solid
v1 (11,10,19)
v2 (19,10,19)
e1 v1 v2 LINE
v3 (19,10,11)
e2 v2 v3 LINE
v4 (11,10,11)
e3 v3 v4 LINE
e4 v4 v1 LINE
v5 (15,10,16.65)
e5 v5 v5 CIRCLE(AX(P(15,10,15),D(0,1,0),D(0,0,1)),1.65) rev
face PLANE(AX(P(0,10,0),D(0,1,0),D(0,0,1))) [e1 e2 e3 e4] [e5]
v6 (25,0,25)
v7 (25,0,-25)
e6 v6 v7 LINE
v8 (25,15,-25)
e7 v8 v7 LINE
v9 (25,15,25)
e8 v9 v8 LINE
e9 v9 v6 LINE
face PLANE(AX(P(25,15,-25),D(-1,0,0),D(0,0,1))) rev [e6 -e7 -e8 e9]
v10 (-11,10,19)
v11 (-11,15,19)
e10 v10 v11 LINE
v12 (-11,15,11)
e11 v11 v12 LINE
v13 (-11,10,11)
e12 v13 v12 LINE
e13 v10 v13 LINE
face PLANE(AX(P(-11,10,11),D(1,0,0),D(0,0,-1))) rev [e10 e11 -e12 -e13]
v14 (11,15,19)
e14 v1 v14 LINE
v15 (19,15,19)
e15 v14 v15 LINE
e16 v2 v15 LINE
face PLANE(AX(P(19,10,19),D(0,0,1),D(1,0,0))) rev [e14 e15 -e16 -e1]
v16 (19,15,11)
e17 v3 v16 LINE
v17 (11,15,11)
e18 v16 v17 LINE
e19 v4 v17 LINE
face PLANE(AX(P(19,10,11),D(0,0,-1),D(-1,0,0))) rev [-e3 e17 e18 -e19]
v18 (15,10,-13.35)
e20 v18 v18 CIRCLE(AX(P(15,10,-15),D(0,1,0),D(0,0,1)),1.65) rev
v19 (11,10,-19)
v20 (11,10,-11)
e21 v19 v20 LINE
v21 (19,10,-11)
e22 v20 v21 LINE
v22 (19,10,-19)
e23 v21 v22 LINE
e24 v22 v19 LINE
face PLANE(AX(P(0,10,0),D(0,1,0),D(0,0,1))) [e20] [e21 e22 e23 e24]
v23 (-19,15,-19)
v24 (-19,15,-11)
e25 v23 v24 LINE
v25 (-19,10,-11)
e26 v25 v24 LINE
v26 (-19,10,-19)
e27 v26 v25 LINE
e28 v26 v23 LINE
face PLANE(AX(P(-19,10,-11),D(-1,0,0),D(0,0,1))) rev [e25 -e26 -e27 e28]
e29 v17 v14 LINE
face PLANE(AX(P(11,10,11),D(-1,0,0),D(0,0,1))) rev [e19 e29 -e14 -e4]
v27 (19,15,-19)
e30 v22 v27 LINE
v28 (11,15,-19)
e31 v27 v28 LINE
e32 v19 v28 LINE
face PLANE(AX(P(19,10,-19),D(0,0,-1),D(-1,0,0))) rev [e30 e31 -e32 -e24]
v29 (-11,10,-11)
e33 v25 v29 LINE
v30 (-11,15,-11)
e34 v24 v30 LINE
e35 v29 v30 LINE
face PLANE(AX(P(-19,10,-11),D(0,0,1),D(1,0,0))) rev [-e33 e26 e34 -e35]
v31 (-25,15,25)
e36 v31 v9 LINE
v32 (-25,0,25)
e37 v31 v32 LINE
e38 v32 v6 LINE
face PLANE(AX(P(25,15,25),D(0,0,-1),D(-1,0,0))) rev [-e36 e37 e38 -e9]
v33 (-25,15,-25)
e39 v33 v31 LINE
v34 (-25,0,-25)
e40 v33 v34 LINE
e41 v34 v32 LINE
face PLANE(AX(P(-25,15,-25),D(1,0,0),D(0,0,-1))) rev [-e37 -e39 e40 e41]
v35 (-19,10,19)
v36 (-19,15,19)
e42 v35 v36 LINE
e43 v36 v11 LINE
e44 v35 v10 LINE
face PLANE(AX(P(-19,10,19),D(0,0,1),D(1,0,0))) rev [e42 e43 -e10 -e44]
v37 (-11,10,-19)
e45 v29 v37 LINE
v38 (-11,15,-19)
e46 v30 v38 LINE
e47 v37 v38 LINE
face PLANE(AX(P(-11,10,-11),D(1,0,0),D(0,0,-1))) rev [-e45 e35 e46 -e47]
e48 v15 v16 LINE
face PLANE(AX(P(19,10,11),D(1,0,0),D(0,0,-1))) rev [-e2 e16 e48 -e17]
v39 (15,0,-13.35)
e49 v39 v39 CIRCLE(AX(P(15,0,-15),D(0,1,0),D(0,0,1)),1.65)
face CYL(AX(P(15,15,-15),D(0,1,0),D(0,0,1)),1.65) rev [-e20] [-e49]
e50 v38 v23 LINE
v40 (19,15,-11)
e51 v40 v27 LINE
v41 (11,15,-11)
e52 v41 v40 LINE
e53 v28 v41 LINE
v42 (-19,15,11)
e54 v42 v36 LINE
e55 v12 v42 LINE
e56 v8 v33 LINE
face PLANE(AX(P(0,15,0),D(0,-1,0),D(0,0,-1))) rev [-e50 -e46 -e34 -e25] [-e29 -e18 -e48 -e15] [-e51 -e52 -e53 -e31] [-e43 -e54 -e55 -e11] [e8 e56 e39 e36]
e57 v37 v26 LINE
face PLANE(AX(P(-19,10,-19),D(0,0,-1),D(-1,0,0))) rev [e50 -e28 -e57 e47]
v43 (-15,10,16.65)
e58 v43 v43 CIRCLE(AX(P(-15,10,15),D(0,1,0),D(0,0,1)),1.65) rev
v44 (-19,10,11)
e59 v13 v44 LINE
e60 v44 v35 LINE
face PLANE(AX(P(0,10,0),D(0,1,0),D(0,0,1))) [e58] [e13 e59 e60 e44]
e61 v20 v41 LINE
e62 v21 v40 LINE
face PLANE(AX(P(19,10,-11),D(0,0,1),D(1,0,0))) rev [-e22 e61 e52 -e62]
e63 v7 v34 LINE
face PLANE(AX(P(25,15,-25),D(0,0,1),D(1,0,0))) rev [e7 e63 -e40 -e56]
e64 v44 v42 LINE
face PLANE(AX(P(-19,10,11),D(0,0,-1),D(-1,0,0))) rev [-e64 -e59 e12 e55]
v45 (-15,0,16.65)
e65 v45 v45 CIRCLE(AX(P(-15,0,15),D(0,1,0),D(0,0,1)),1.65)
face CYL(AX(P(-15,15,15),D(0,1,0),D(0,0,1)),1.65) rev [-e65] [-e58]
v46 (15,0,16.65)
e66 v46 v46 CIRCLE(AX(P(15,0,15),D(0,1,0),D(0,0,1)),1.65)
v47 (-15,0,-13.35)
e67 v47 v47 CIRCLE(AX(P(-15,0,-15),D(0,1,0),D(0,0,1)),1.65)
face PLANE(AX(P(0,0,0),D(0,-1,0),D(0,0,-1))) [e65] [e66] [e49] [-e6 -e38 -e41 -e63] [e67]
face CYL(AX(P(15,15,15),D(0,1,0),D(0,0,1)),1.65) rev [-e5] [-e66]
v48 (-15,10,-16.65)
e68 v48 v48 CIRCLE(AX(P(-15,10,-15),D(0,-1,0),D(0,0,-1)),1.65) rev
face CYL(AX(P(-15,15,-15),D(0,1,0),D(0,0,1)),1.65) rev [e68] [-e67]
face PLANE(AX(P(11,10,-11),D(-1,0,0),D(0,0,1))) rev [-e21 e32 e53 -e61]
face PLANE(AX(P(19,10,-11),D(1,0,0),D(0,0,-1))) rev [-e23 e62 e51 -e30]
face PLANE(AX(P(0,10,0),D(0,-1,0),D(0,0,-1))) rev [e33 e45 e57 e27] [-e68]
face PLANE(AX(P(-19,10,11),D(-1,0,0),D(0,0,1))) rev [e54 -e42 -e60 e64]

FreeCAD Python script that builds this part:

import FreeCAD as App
import Part
import Sketcher
from FreeCAD import Vector
Q = App.Units.Quantity


def add_polygon(sketch, points):
    """Adds a closed chain of lines whose ends are joined by coincident constraints."""
    first, n = sketch.GeometryCount, len(points)
    for a, b in zip(points, points[1:] + points[:1]):
        sketch.addGeometry(Part.LineSegment(App.Vector(*a, 0), App.Vector(*b, 0)), False)
    for i in range(n):
        sketch.addConstraint(Sketcher.Constraint("Coincident", first + i, 2, first + (i + 1) % n, 1))

doc = App.newDocument("Part")
body = doc.addObject("PartDesign::Body", "Body")

# Sketch on XZ plane
sketch1 = body.newObject("Sketcher::SketchObject", "Sketch")
sketch1.AttachmentSupport = (doc.getObject("XZ_Plane"), [""])
sketch1.MapMode = "FlatFace"
add_polygon(sketch1, [(-25, -25), (-25, 25), (25, 25), (25, -25)])  # lines 0-3
sketch1.addConstraint([
    Sketcher.Constraint("Vertical", 0),
    Sketcher.Constraint("Horizontal", 1),
    Sketcher.Constraint("Vertical", 2),
    Sketcher.Constraint("Horizontal", 3),
    Sketcher.Constraint("Symmetric", 0, 2, 2, 2, -1, 1),
    Sketcher.Constraint("Equal", 3, 0),
    Sketcher.Constraint("DistanceX", 1, 1, 1, 2, Q("50 mm")),
])
pad1 = body.newObject("PartDesign::Pad", "Pad")
pad1.Profile = sketch1
pad1.Length = 15
pad1.Reversed = True

# Sketch on XZ plane
sketch2 = body.newObject("Sketcher::SketchObject", "Sketch001")
sketch2.AttachmentSupport = (doc.getObject("XZ_Plane"), [""])
sketch2.MapMode = "FlatFace"
sketch2.AttachmentOffset = App.Placement(Vector(0, 0, -15), App.Rotation())
sketch2.addGeometry([
    Part.Circle(Vector(-15, -15, 0), Vector(0, 0, 1), 1.6),
    Part.Circle(Vector(15, -15, 0), Vector(0, 0, 1), 1.6),
    Part.Circle(Vector(15, 15, 0), Vector(0, 0, 1), 1.6),
    Part.Circle(Vector(-15, 15, 0), Vector(0, 0, 1), 1.6),
], False)
sketch2.addConstraint([
    Sketcher.Constraint("Equal", 0, 1),
    Sketcher.Constraint("Equal", 1, 2),
    Sketcher.Constraint("Equal", 2, 3),
    Sketcher.Constraint("Symmetric", 0, 3, 2, 3, -1, 1),
    Sketcher.Constraint("Symmetric", 1, 3, 3, 3, -1, 1),
    Sketcher.Constraint("Symmetric", 0, 3, 1, 3, -2),
    Sketcher.Constraint("Diameter", 0, Q("3.3 mm")),
    Sketcher.Constraint("DistanceX", 0, 3, -1, 1, Q("15 mm")),
    Sketcher.Constraint("DistanceY", 0, 3, -1, 1, Q("15 mm")),
])
doc.recompute()
hole = body.newObject("PartDesign::Hole", "Hole")
hole.Profile = sketch2
hole.ThreadType = "None"
hole.Diameter = 3.3
hole.DepthType = "ThroughAll"
hole.HoleCutType = "Countersink"
hole.HoleCutDiameter = 3.35
hole.HoleCutCountersinkAngle = 90
hole.Reversed = True

# Sketch on XZ plane
sketch3 = body.newObject("Sketcher::SketchObject", "Sketch002")
sketch3.AttachmentSupport = (doc.getObject("XZ_Plane"), [""])
sketch3.MapMode = "FlatFace"
sketch3.AttachmentOffset = App.Placement(Vector(0, 0, -15), App.Rotation())
add_polygon(sketch3, [(11, -19), (11, -11), (19, -11), (19, -19)])  # lines 0-3
add_polygon(sketch3, [(-19, -19), (-19, -11), (-11, -11), (-11, -19)])  # lines 4-7
add_polygon(sketch3, [(-19, 11), (-19, 19), (-11, 19), (-11, 11)])  # lines 8-11
add_polygon(sketch3, [(11, 11), (11, 19), (19, 19), (19, 11)])  # lines 12-15
sketch3.addConstraint([
    Sketcher.Constraint("Vertical", 0),
    Sketcher.Constraint("Horizontal", 1),
    Sketcher.Constraint("Vertical", 2),
    Sketcher.Constraint("Horizontal", 3),
    Sketcher.Constraint("Vertical", 4),
    Sketcher.Constraint("Horizontal", 5),
    Sketcher.Constraint("Vertical", 6),
    Sketcher.Constraint("Horizontal", 7),
    Sketcher.Constraint("Vertical", 8),
    Sketcher.Constraint("Horizontal", 9),
    Sketcher.Constraint("Vertical", 10),
    Sketcher.Constraint("Horizontal", 11),
    Sketcher.Constraint("Vertical", 12),
    Sketcher.Constraint("Horizontal", 13),
    Sketcher.Constraint("Vertical", 14),
    Sketcher.Constraint("Horizontal", 15),
    Sketcher.Constraint("Symmetric", 2, 2, 8, 2, -1, 1),
    Sketcher.Constraint("Symmetric", 0, 2, 10, 2, -1, 1),
    Sketcher.Constraint("Symmetric", 6, 2, 12, 2, -1, 1),
    Sketcher.Constraint("Symmetric", 4, 2, 14, 2, -1, 1),
    Sketcher.Constraint("Symmetric", 1, 2, 4, 2, -2),
    Sketcher.Constraint("Symmetric", 3, 2, 6, 2, -2),
    Sketcher.Constraint("Equal", 15, 0),
    Sketcher.Constraint("DistanceX", 1, 1, 1, 2, Q("8 mm")),
    Sketcher.Constraint("DistanceX", -1, 1, 0, 2, Q("11 mm")),
    Sketcher.Constraint("DistanceY", 0, 2, -1, 1, Q("11 mm")),
])
pocket1 = body.newObject("PartDesign::Pocket", "Pocket")
pocket1.Profile = sketch3
pocket1.Length = 5
pocket1.Reversed = True

doc.recompute()
